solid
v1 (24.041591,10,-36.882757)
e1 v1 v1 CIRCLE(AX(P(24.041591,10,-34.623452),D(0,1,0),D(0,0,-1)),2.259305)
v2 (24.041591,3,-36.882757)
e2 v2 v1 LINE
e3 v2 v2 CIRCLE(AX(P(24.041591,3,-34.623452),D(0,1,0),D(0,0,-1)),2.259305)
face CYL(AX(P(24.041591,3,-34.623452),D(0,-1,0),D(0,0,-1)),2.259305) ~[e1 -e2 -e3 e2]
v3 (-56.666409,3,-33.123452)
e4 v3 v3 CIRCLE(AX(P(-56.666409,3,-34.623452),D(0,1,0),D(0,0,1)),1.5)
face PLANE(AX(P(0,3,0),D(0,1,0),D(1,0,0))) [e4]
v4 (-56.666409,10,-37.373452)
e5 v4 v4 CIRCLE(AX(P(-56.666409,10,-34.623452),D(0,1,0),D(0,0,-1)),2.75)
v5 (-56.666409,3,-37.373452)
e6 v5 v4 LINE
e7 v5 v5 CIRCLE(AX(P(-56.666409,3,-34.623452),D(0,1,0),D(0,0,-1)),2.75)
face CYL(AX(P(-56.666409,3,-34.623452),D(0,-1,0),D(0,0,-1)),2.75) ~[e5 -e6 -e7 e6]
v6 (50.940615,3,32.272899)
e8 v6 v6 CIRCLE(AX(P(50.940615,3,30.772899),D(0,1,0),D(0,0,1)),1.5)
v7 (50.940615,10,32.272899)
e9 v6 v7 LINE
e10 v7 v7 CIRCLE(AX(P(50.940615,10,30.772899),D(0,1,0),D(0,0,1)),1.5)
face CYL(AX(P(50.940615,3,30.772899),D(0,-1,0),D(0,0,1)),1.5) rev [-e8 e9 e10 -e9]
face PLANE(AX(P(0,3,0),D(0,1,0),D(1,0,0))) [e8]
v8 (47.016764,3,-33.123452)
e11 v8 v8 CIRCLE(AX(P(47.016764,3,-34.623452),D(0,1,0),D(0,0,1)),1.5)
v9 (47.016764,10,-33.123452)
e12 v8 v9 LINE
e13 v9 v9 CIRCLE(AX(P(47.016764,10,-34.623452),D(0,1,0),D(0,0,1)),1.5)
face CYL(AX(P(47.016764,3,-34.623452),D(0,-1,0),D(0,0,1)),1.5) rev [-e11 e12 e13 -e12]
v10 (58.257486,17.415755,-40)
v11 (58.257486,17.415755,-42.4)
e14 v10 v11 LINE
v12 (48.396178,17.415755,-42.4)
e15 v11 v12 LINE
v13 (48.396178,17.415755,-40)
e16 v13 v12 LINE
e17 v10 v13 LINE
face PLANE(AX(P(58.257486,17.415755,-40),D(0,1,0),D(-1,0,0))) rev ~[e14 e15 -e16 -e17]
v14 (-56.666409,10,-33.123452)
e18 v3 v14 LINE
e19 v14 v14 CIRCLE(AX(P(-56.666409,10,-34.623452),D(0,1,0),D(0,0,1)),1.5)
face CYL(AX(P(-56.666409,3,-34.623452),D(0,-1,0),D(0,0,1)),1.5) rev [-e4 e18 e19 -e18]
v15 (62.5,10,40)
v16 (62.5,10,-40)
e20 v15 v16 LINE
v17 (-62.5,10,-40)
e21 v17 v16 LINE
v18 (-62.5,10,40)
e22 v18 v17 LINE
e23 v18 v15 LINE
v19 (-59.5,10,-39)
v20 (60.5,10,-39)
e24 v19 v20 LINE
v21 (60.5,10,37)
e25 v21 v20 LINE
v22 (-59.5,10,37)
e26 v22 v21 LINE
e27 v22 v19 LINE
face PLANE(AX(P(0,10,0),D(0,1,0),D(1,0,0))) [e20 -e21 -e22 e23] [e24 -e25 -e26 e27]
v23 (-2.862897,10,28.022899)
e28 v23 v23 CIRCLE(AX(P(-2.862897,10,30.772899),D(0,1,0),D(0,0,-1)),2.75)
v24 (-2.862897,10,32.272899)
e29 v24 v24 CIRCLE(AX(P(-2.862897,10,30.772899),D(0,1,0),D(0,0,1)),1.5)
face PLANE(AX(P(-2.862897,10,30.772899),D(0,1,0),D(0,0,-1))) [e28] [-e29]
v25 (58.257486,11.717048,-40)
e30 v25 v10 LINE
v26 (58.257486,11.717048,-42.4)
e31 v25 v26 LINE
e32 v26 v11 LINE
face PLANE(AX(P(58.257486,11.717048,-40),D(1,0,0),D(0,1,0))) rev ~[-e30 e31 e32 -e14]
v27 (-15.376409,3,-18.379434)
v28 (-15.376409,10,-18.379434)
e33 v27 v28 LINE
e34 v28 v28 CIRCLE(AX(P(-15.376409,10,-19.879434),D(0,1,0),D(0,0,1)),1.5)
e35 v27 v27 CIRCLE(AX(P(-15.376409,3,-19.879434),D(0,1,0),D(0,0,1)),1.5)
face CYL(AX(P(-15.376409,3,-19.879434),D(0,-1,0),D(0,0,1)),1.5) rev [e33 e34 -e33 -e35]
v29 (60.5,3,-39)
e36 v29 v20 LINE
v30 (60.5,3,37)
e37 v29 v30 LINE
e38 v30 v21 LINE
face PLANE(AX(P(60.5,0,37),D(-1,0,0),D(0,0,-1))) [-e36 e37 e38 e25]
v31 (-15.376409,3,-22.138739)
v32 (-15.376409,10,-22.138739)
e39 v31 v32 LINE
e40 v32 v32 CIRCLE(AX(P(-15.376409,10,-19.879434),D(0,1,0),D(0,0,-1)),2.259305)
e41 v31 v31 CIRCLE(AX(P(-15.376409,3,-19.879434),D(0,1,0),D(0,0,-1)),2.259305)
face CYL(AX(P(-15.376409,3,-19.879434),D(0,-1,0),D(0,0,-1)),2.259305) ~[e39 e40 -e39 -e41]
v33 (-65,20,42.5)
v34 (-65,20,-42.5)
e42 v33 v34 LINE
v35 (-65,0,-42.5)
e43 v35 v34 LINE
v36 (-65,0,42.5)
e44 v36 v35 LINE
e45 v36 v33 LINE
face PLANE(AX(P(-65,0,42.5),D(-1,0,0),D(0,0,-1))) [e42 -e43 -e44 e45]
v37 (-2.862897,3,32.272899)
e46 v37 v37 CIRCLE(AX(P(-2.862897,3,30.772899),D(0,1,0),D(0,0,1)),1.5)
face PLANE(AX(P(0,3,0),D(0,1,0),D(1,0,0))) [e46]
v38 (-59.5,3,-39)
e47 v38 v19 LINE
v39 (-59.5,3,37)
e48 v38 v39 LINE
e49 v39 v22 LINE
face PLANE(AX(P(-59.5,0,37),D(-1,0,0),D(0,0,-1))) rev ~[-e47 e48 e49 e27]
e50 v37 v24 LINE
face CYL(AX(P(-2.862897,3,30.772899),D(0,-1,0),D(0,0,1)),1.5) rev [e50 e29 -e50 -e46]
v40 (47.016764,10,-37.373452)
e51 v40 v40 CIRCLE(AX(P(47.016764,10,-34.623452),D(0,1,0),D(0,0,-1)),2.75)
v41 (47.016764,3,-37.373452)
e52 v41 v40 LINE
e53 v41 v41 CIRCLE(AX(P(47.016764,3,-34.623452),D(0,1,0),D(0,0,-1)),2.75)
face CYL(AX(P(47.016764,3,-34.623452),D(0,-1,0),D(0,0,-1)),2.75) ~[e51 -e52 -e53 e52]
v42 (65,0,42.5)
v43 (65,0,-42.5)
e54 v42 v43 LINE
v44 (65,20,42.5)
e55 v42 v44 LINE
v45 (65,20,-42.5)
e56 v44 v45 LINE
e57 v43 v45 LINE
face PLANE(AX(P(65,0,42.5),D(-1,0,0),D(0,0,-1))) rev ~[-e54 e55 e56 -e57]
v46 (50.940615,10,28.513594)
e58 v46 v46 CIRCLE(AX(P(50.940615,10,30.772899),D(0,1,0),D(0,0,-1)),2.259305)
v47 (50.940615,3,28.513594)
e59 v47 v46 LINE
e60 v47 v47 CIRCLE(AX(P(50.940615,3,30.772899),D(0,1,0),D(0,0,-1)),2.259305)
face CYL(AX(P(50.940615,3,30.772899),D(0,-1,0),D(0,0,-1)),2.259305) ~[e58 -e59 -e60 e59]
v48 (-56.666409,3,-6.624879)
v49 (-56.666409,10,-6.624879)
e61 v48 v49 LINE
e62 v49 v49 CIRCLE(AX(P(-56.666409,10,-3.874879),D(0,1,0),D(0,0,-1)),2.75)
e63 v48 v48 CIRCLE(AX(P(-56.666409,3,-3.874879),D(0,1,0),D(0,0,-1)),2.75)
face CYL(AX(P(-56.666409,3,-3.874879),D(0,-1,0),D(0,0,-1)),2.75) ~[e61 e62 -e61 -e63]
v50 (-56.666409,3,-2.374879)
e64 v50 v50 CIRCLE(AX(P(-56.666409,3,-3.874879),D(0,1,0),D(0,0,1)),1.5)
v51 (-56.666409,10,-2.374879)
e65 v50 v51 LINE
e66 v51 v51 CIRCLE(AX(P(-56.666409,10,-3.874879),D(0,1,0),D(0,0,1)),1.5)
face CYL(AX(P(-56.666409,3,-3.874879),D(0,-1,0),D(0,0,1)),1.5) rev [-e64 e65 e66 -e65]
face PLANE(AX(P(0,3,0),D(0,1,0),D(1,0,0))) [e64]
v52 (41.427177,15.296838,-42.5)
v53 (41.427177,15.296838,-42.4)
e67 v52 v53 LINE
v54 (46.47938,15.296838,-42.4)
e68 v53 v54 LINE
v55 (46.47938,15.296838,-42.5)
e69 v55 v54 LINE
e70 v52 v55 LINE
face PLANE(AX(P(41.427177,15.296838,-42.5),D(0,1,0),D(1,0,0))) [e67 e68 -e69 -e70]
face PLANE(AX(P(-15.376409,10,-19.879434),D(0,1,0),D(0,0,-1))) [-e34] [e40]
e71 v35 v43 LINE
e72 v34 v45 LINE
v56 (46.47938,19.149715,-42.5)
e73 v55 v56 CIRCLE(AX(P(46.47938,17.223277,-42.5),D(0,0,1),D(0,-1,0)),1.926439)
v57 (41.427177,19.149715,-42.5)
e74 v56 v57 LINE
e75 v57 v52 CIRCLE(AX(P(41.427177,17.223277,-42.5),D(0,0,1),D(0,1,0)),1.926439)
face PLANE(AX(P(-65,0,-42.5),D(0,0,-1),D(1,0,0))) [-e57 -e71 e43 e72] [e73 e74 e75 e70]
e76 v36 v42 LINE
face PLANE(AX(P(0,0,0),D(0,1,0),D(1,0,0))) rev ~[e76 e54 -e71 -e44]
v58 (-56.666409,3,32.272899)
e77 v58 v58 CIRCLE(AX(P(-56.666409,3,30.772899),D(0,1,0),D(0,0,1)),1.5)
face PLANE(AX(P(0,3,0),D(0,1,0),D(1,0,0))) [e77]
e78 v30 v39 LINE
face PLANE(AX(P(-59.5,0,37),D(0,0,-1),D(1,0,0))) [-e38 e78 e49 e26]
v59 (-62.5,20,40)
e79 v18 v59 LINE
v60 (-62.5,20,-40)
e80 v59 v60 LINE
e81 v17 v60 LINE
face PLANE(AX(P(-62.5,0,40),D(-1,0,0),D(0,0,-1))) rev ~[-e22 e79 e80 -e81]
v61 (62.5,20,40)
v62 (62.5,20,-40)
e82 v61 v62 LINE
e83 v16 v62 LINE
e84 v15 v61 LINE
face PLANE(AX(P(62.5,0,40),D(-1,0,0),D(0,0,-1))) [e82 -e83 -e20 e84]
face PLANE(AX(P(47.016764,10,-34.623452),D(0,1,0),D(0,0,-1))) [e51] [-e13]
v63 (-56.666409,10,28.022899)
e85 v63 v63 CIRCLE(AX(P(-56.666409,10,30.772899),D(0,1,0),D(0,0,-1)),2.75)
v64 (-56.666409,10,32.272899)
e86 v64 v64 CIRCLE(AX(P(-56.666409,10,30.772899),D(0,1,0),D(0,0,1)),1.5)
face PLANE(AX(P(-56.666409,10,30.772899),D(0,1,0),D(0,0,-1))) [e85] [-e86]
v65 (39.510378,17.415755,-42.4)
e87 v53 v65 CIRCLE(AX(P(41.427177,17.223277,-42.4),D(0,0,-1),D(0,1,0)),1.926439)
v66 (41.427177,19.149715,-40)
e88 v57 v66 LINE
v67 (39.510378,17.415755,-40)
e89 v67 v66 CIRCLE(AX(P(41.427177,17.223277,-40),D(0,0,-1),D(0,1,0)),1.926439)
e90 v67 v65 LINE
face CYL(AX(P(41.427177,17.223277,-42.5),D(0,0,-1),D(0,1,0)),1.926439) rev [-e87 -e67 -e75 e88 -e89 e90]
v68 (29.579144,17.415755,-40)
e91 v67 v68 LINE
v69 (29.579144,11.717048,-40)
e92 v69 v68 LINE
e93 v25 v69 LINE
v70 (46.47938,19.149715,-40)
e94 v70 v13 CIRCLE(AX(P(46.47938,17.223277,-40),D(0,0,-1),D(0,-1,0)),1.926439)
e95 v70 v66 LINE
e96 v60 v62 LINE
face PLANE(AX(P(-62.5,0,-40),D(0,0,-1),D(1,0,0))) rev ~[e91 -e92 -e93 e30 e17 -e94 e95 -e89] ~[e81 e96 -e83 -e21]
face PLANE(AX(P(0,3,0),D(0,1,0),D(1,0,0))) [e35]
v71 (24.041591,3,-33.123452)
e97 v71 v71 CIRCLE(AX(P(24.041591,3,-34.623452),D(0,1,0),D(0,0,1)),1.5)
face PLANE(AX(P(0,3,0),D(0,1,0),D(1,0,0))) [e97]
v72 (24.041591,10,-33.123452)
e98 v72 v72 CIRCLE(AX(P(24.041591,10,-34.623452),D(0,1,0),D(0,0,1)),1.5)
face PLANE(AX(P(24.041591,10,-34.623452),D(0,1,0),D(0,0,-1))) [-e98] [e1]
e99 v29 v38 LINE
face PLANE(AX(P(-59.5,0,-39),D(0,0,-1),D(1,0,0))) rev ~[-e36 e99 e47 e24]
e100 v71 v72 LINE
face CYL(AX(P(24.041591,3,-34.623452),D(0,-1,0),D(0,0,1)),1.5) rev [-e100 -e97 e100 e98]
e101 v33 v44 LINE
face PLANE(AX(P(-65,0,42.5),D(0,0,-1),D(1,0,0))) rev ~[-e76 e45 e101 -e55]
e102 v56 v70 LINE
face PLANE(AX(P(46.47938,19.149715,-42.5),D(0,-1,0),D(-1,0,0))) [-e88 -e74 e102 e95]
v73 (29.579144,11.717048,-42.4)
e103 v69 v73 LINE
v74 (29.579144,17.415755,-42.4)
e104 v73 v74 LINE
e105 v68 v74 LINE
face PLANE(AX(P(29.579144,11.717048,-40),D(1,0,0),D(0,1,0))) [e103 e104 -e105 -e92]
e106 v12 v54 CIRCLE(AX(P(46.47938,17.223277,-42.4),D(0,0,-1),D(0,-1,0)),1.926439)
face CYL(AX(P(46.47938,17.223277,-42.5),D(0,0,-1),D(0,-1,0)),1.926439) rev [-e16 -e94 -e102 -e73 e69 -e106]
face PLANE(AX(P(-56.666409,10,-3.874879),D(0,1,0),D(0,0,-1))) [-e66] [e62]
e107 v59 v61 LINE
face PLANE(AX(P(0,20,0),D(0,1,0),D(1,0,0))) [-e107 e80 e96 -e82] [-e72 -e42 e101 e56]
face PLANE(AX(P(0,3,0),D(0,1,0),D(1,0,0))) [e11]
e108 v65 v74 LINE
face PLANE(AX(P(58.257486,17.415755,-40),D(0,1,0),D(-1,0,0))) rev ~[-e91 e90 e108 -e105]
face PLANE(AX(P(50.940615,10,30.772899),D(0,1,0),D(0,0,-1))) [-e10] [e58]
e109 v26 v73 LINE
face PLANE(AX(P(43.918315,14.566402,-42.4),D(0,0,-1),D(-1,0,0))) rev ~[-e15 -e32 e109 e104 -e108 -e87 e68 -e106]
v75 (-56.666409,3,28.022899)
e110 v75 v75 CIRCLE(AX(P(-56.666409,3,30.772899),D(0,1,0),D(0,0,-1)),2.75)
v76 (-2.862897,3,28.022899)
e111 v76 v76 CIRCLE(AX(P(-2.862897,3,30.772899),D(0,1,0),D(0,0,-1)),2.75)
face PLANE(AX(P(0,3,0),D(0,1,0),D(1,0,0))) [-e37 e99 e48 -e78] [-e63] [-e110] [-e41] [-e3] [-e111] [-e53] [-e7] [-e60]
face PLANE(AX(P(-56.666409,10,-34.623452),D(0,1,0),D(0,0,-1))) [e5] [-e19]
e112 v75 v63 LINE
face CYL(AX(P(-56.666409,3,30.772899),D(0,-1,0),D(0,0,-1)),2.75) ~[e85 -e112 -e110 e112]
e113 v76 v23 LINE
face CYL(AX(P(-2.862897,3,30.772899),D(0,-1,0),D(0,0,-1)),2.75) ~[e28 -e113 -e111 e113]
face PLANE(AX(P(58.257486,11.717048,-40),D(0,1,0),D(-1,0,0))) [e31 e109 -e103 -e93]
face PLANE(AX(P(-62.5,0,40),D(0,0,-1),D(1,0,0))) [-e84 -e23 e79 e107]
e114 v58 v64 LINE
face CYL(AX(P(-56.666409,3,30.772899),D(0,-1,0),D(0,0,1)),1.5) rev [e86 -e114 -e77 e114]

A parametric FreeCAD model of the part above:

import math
import FreeCAD as App
import Part
import Sketcher

V = App.Vector
Q = App.Units.Quantity


def add_polygon(sketch, points):
    """Adds a closed chain of lines whose ends are joined by coincident constraints."""
    first, n = sketch.GeometryCount, len(points)
    for a, b in zip(points, points[1:] + points[:1]):
        sketch.addGeometry(Part.LineSegment(App.Vector(*a, 0), App.Vector(*b, 0)), False)
    for i in range(n):
        sketch.addConstraint(Sketcher.Constraint("Coincident", first + i, 2, first + (i + 1) % n, 1))

doc = App.newDocument("Part")
body = doc.addObject("PartDesign::Body", "Body")

# Sketch on XZ plane
sketch1 = doc.addObject("Sketcher::SketchObject", "Sketch")
body.addObject(sketch1)
sketch1.AttachmentSupport = (doc.XZ_Plane, [""])
sketch1.MapMode = "FlatFace"
add_polygon(sketch1, [(-62, -40), (-62, 40), (62, 40), (62, -40)])  # lines 0-3
sketch1.addConstraint(Sketcher.Constraint("Vertical", 0))
sketch1.addConstraint(Sketcher.Constraint("Horizontal", 1))
sketch1.addConstraint(Sketcher.Constraint("Vertical", 2))
sketch1.addConstraint(Sketcher.Constraint("Horizontal", 3))
sketch1.addConstraint(Sketcher.Constraint("Symmetric", 0, 2, 2, 2, -1, 1))
sketch1.addConstraint(Sketcher.Constraint("DistanceX", 1, 1, 1, 2, Q("125 mm")))
sketch1.addConstraint(Sketcher.Constraint("DistanceY", 0, 1, 0, 2, Q("80 mm")))
pad1 = doc.addObject("PartDesign::Pad", "Pad")
body.addObject(pad1)
pad1.Profile = sketch1
pad1.Length = 3
pad1.Reversed = True

# Sketch on XZ plane
sketch2 = doc.addObject("Sketcher::SketchObject", "Sketch001")
body.addObject(sketch2)
sketch2.AttachmentSupport = (doc.XZ_Plane, [""])
sketch2.MapMode = "FlatFace"
add_polygon(sketch2, [(-65, -42), (-65, 42), (65, 42), (65, -42)])  # lines 0-3
add_polygon(sketch2, [(62, 40), (-62, 40), (-62, -40), (62, -40)])  # lines 4-7
sketch2.addConstraint(Sketcher.Constraint("Vertical", 0))
sketch2.addConstraint(Sketcher.Constraint("Horizontal", 1))
sketch2.addConstraint(Sketcher.Constraint("Vertical", 2))
sketch2.addConstraint(Sketcher.Constraint("Horizontal", 3))
sketch2.addConstraint(Sketcher.Constraint("Horizontal", 4))
sketch2.addConstraint(Sketcher.Constraint("Vertical", 5))
sketch2.addConstraint(Sketcher.Constraint("Horizontal", 6))
sketch2.addConstraint(Sketcher.Constraint("Vertical", 7))
sketch2.addConstraint(Sketcher.Constraint("Symmetric", 0, 2, 2, 2, -1, 1))
sketch2.addConstraint(Sketcher.Constraint("Symmetric", 4, 2, 6, 2, -1, 1))
sketch2.addConstraint(Sketcher.Constraint("DistanceX", 1, 1, 1, 2, Q("130 mm")))
sketch2.addConstraint(Sketcher.Constraint("DistanceX", 4, 2, 4, 1, Q("125 mm")))
sketch2.addConstraint(Sketcher.Constraint("DistanceY", 0, 1, 0, 2, Q("85 mm")))
sketch2.addConstraint(Sketcher.Constraint("DistanceY", 5, 2, 5, 1, Q("80 mm")))
pad2 = doc.addObject("PartDesign::Pad", "Pad001")
body.addObject(pad2)
pad2.Profile = sketch2
pad2.Length = 20
pad2.Reversed = True

# Sketch on XZ plane
sketch3 = doc.addObject("Sketcher::SketchObject", "Sketch002")
body.addObject(sketch3)
sketch3.AttachmentSupport = (doc.XZ_Plane, [""])
sketch3.MapMode = "FlatFace"
add_polygon(sketch3, [(-62, -40), (-62, 40), (62, 40), (62, -40)])  # lines 0-3
add_polygon(sketch3, [(60, 37), (-60, 37), (-60, -39), (60, -39)])  # lines 4-7
sketch3.addConstraint(Sketcher.Constraint("Vertical", 0))
sketch3.addConstraint(Sketcher.Constraint("Horizontal", 1))
sketch3.addConstraint(Sketcher.Constraint("Vertical", 2))
sketch3.addConstraint(Sketcher.Constraint("Horizontal", 3))
sketch3.addConstraint(Sketcher.Constraint("Horizontal", 4))
sketch3.addConstraint(Sketcher.Constraint("Vertical", 5))
sketch3.addConstraint(Sketcher.Constraint("Horizontal", 6))
sketch3.addConstraint(Sketcher.Constraint("Vertical", 7))
sketch3.addConstraint(Sketcher.Constraint("Symmetric", 0, 2, 2, 2, -1, 1))
sketch3.addConstraint(Sketcher.Constraint("DistanceX", 1, 1, 1, 2, Q("125 mm")))
sketch3.addConstraint(Sketcher.Constraint("DistanceX", 4, 2, 4, 1, Q("120 mm")))
sketch3.addConstraint(Sketcher.Constraint("DistanceY", 0, 1, 0, 2, Q("80 mm")))
sketch3.addConstraint(Sketcher.Constraint("DistanceY", 5, 2, 5, 1, Q("76 mm")))
sketch3.addConstraint(Sketcher.Constraint("DistanceY", -1, 1, 4, 2, Q("37 mm")))
sketch3.addConstraint(Sketcher.Constraint("DistanceX", 0, 2, 4, 2, Q("3 mm")))
pad3 = doc.addObject("PartDesign::Pad", "Pad002")
body.addObject(pad3)
pad3.Profile = sketch3
pad3.Length = 10
pad3.Reversed = True

# Sketch on XY plane
sketch4 = doc.addObject("Sketcher::SketchObject", "Sketch003")
body.addObject(sketch4)
sketch4.AttachmentSupport = (doc.XY_Plane, [""])
sketch4.MapMode = "FlatFace"
sketch4.AttachmentOffset = App.Placement(V(0, 0, -40), App.Rotation())
add_polygon(sketch4, [(58, 17), (58, 12), (30, 12), (30, 17)])  # lines 0-3
sketch4.addConstraint(Sketcher.Constraint("Vertical", 0))
sketch4.addConstraint(Sketcher.Constraint("Horizontal", 1))
sketch4.addConstraint(Sketcher.Constraint("Vertical", 2))
sketch4.addConstraint(Sketcher.Constraint("Horizontal", 3))
sketch4.addConstraint(Sketcher.Constraint("DistanceX", 1, 2, 1, 1, Q("28.678342 mm")))
sketch4.addConstraint(Sketcher.Constraint("DistanceY", 0, 2, 0, 1, Q("5.698707 mm")))
sketch4.addConstraint(Sketcher.Constraint("DistanceY", -1, 1, 0, 2, Q("11.717048 mm")))
sketch4.addConstraint(Sketcher.Constraint("DistanceX", -1, 1, 0, 2, Q("58.257486 mm")))
pocket1 = doc.addObject("PartDesign::Pocket", "Pocket")
body.addObject(pocket1)
pocket1.Profile = sketch4
pocket1.Length = 2.4

# Sketch on XY plane
sketch5 = doc.addObject("Sketcher::SketchObject", "Sketch004")
body.addObject(sketch5)
sketch5.AttachmentSupport = (doc.XY_Plane, [""])
sketch5.MapMode = "FlatFace"
sketch5.AttachmentOffset = App.Placement(V(0, 0, -42.5), App.Rotation())
sketch5.addGeometry(Part.LineSegment(V(41.4, 19.1, 0), V(46.5, 19.1, 0)), False)
sketch5.addGeometry(Part.ArcOfCircle(Part.Circle(V(46.5, 17.2, 0), V(0, 0, 1), 1.9), math.radians(-90), math.radians(90)), False)
sketch5.addGeometry(Part.LineSegment(V(46.5, 15.3, 0), V(41.4, 15.3, 0)), False)
sketch5.addGeometry(Part.ArcOfCircle(Part.Circle(V(41.4, 17.2, 0), V(0, 0, 1), 1.9), math.radians(90), math.radians(270)), False)
sketch5.addConstraint(Sketcher.Constraint("Tangent", 0, 2, 1, 2))
sketch5.addConstraint(Sketcher.Constraint("Tangent", 1, 1, 2, 1))
sketch5.addConstraint(Sketcher.Constraint("Tangent", 2, 2, 3, 2))
sketch5.addConstraint(Sketcher.Constraint("Tangent", 3, 1, 0, 1))
sketch5.addConstraint(Sketcher.Constraint("Horizontal", 0))
sketch5.addConstraint(Sketcher.Constraint("Horizontal", 2))
sketch5.addConstraint(Sketcher.Constraint("Radius", 1, Q("1.926439 mm")))
sketch5.addConstraint(Sketcher.Constraint("DistanceX", 0, 1, 0, 2, Q("5.052203 mm")))
sketch5.addConstraint(Sketcher.Constraint("DistanceX", -1, 1, 1, 3, Q("46.47938 mm")))
sketch5.addConstraint(Sketcher.Constraint("DistanceY", -1, 1, 1, 1, Q("15.296838 mm")))
pocket2 = doc.addObject("PartDesign::Pocket", "Pocket001")
body.addObject(pocket2)
pocket2.Profile = sketch5
pocket2.Length = 3
pocket2.Reversed = True

# Sketch on XZ plane
sketch6 = doc.addObject("Sketcher::SketchObject", "Sketch005")
body.addObject(sketch6)
sketch6.AttachmentSupport = (doc.XZ_Plane, [""])
sketch6.MapMode = "FlatFace"
sketch6.AttachmentOffset = App.Placement(V(0, 0, -3), App.Rotation())
sketch6.addGeometry(Part.Circle(V(-56.7, 30.8, 0), V(0, 0, 1), 2.8), False)
sketch6.addGeometry(Part.Circle(V(-56.7, 30.8, 0), V(0, 0, 1), 1.5), False)
sketch6.addGeometry(Part.Circle(V(-56.7, -34.6, 0), V(0, 0, 1), 2.8), False)
sketch6.addGeometry(Part.Circle(V(-56.7, -34.6, 0), V(0, 0, 1), 1.5), False)
sketch6.addGeometry(Part.Circle(V(-56.7, -3.9, 0), V(0, 0, 1), 2.8), False)
sketch6.addGeometry(Part.Circle(V(-56.7, -3.9, 0), V(0, 0, 1), 1.5), False)
sketch6.addGeometry(Part.Circle(V(-15.4, -19.9, 0), V(0, 0, 1), 2.3), False)
sketch6.addGeometry(Part.Circle(V(-15.4, -19.9, 0), V(0, 0, 1), 1.5), False)
sketch6.addGeometry(Part.Circle(V(24, -34.6, 0), V(0, 0, 1), 2.3), False)
sketch6.addGeometry(Part.Circle(V(24, -34.6, 0), V(0, 0, 1), 1.5), False)
sketch6.addGeometry(Part.Circle(V(50.9, 30.8, 0), V(0, 0, 1), 2.3), False)
sketch6.addGeometry(Part.Circle(V(50.9, 30.8, 0), V(0, 0, 1), 1.5), False)
sketch6.addGeometry(Part.Circle(V(-2.9, 30.8, 0), V(0, 0, 1), 2.8), False)
sketch6.addGeometry(Part.Circle(V(-2.9, 30.8, 0), V(0, 0, 1), 1.5), False)
sketch6.addGeometry(Part.Circle(V(47, -34.6, 0), V(0, 0, 1), 2.8), False)
sketch6.addGeometry(Part.Circle(V(47, -34.6, 0), V(0, 0, 1), 1.5), False)
sketch6.addConstraint(Sketcher.Constraint("Coincident", 1, 3, 0, 3))
sketch6.addConstraint(Sketcher.Constraint("Coincident", 3, 3, 2, 3))
sketch6.addConstraint(Sketcher.Constraint("Coincident", 5, 3, 4, 3))
sketch6.addConstraint(Sketcher.Constraint("Coincident", 7, 3, 6, 3))
sketch6.addConstraint(Sketcher.Constraint("Coincident", 9, 3, 8, 3))
sketch6.addConstraint(Sketcher.Constraint("Coincident", 11, 3, 10, 3))
sketch6.addConstraint(Sketcher.Constraint("Coincident", 13, 3, 12, 3))
sketch6.addConstraint(Sketcher.Constraint("Coincident", 15, 3, 14, 3))
sketch6.addConstraint(Sketcher.Constraint("Equal", 0, 2))
sketch6.addConstraint(Sketcher.Constraint("Equal", 1, 3))
sketch6.addConstraint(Sketcher.Constraint("Equal", 2, 4))
sketch6.addConstraint(Sketcher.Constraint("Equal", 3, 5))
sketch6.addConstraint(Sketcher.Constraint("Equal", 5, 7))
sketch6.addConstraint(Sketcher.Constraint("Equal", 6, 8))
sketch6.addConstraint(Sketcher.Constraint("Equal", 7, 9))
sketch6.addConstraint(Sketcher.Constraint("Equal", 8, 10))
sketch6.addConstraint(Sketcher.Constraint("Equal", 9, 11))
sketch6.addConstraint(Sketcher.Constraint("Equal", 4, 12))
sketch6.addConstraint(Sketcher.Constraint("Equal", 11, 13))
sketch6.addConstraint(Sketcher.Constraint("Equal", 12, 14))
sketch6.addConstraint(Sketcher.Constraint("Equal", 13, 15))
sketch6.addConstraint(Sketcher.Constraint("Horizontal", 3, 3, 8, 3))
sketch6.addConstraint(Sketcher.Constraint("Horizontal", 1, 3, 10, 3))
sketch6.addConstraint(Sketcher.Constraint("Horizontal", 11, 3, 12, 3))
sketch6.addConstraint(Sketcher.Constraint("Horizontal", 9, 3, 14, 3))
sketch6.addConstraint(Sketcher.Constraint("Vertical", 1, 3, 2, 3))
sketch6.addConstraint(Sketcher.Constraint("Vertical", 3, 3, 4, 3))
sketch6.addConstraint(Sketcher.Constraint("Diameter", 1, Q("3 mm")))
sketch6.addConstraint(Sketcher.Constraint("Diameter", 0, Q("5.5 mm")))
sketch6.addConstraint(Sketcher.Constraint("Diameter", 6, Q("4.518611 mm")))
sketch6.addConstraint(Sketcher.Constraint("DistanceX", 2, 3, 6, 3, Q("41.29 mm")))
sketch6.addConstraint(Sketcher.Constraint("DistanceX", 6, 3, 8, 3, Q("39.418 mm")))
sketch6.addConstraint(Sketcher.Constraint("DistanceY", -1, 1, 0, 3, Q("30.772899 mm")))
sketch6.addConstraint(Sketcher.Constraint("DistanceX", 0, 3, -1, 1, Q("56.666409 mm")))
sketch6.addConstraint(Sketcher.Constraint("DistanceY", 2, 3, -1, 1, Q("34.623452 mm")))
sketch6.addConstraint(Sketcher.Constraint("DistanceY", 4, 3, -1, 1, Q("3.874879 mm")))
sketch6.addConstraint(Sketcher.Constraint("DistanceY", 2, 3, 6, 3, Q("14.744018 mm")))
sketch6.addConstraint(Sketcher.Constraint("DistanceX", 14, 3, 10, 3, Q("3.923852 mm")))
sketch6.addConstraint(Sketcher.Constraint("DistanceX", -1, 1, 10, 3, Q("50.940615 mm")))
sketch6.addConstraint(Sketcher.Constraint("DistanceX", 12, 3, -1, 1, Q("2.862897 mm")))
pad4 = doc.addObject("PartDesign::Pad", "Pad003")
body.addObject(pad4)
pad4.Profile = sketch6
pad4.Length = 7
pad4.Reversed = True

doc.recompute()
